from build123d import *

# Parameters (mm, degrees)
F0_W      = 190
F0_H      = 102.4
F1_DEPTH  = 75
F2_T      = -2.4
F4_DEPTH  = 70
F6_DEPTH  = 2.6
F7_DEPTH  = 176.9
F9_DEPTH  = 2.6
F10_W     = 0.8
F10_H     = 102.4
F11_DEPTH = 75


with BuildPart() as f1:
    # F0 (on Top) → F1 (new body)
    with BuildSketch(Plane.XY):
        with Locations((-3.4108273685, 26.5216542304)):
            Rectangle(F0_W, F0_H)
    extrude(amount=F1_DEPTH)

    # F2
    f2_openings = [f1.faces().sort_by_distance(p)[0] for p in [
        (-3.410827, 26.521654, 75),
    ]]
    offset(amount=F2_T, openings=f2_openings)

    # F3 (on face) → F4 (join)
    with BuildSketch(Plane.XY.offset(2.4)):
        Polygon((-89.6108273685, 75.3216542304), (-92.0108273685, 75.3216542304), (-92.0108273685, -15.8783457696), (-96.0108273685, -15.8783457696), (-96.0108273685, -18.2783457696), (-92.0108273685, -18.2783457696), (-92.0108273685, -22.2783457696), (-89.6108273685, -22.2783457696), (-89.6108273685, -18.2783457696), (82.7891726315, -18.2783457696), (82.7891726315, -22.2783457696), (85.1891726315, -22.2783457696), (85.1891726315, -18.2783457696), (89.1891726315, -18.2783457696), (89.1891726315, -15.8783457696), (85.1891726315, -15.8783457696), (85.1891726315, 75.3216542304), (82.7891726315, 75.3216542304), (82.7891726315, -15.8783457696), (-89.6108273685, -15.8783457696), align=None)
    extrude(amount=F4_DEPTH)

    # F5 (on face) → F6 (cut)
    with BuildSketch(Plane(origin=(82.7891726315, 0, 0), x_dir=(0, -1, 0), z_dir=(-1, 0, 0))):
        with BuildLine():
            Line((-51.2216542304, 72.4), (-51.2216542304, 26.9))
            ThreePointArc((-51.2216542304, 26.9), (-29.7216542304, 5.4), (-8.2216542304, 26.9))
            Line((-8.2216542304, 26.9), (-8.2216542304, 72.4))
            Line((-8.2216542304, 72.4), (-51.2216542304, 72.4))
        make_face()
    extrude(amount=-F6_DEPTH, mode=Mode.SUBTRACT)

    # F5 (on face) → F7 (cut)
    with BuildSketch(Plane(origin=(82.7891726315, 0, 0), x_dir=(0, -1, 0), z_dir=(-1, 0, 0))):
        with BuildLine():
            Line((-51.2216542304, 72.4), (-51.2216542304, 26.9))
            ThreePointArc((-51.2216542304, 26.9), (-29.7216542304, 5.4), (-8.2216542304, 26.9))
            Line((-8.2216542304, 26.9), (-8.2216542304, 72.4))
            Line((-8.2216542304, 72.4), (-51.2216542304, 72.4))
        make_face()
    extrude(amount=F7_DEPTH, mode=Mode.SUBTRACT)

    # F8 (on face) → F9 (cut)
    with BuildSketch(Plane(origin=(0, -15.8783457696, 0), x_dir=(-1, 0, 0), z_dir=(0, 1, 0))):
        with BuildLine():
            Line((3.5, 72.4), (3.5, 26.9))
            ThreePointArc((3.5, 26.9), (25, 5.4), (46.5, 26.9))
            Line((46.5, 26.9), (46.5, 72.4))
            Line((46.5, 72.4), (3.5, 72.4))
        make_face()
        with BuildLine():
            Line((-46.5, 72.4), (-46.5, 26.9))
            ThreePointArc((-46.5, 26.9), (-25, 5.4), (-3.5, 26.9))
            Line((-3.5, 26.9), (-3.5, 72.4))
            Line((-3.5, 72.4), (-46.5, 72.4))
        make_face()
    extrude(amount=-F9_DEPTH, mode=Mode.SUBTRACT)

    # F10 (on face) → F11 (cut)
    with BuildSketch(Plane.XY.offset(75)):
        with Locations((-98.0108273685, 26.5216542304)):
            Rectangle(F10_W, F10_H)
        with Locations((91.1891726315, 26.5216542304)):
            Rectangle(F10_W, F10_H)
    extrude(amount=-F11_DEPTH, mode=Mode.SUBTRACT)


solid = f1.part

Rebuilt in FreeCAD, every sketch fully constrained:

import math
import FreeCAD as App
import Part
import Sketcher

V = App.Vector


def faces_at(feature, points):
    """Names of the faces that lie closest to the given points."""
    faces = feature.Shape.Faces
    near = lambda p: min(range(len(faces)), key=lambda i: faces[i].distToShape(Part.Vertex(*p))[0])
    return sorted({f"Face{near(p) + 1}" for p in points})

doc = App.newDocument("Part")
body = doc.addObject("PartDesign::Body", "Body")

# Sketch on XY plane
sketch1 = body.newObject("Sketcher::SketchObject", "Sketch")
sketch1.AttachmentSupport = (doc.getObject("XY_Plane"), [""])
sketch1.MapMode = "FlatFace"
sketch1.addGeometry(Part.LineSegment(V(-98, 78, 0), V(-98, -25, 0)), False)
sketch1.addGeometry(Part.LineSegment(V(-98, -25, 0), V(92, -25, 0)), False)
sketch1.addGeometry(Part.LineSegment(V(92, -25, 0), V(92, 78, 0)), False)
sketch1.addGeometry(Part.LineSegment(V(92, 78, 0), V(-98, 78, 0)), False)
sketch1.addConstraint(Sketcher.Constraint("Coincident", 0, 2, 1, 1))
sketch1.addConstraint(Sketcher.Constraint("Coincident", 1, 2, 2, 1))
sketch1.addConstraint(Sketcher.Constraint("Coincident", 2, 2, 3, 1))
sketch1.addConstraint(Sketcher.Constraint("Coincident", 3, 2, 0, 1))
sketch1.addConstraint(Sketcher.Constraint("Vertical", 0))
sketch1.addConstraint(Sketcher.Constraint("Horizontal", 1))
sketch1.addConstraint(Sketcher.Constraint("Vertical", 2))
sketch1.addConstraint(Sketcher.Constraint("Horizontal", 3))
sketch1.addConstraint(Sketcher.Constraint("DistanceX", 1, 1, 1, 2, 190.0))
sketch1.addConstraint(Sketcher.Constraint("DistanceY", 0, 2, 0, 1, 102.4))
sketch1.addConstraint(Sketcher.Constraint("DistanceX", 0, 2, -1, 1, 98.410827))
sketch1.addConstraint(Sketcher.Constraint("DistanceY", 0, 2, -1, 1, 24.678346))
pad1 = body.newObject("PartDesign::Pad", "Pad")
pad1.Profile = sketch1
pad1.Length = 75
doc.recompute()

thickness = body.newObject("PartDesign::Thickness", "Thickness")
thickness.Base = (pad1, faces_at(pad1, [(-3.411, 26.522, 75)]))
thickness.Value = 2.4
thickness.Reversed = True
thickness.Join = "Arc"

# Sketch on XY plane
sketch2 = body.newObject("Sketcher::SketchObject", "Sketch001")
sketch2.AttachmentSupport = (doc.getObject("XY_Plane"), [""])
sketch2.MapMode = "FlatFace"
sketch2.AttachmentOffset = App.Placement(V(0, 0, 2.4), App.Rotation())
sketch2.addGeometry(Part.LineSegment(V(-89.6, 75.3, 0), V(-92, 75.3, 0)), False)
sketch2.addGeometry(Part.LineSegment(V(-92, 75.3, 0), V(-92, -15.9, 0)), False)
sketch2.addGeometry(Part.LineSegment(V(-92, -15.9, 0), V(-96, -15.9, 0)), False)
sketch2.addGeometry(Part.LineSegment(V(-96, -15.9, 0), V(-96, -18.3, 0)), False)
sketch2.addGeometry(Part.LineSegment(V(-96, -18.3, 0), V(-92, -18.3, 0)), False)
sketch2.addGeometry(Part.LineSegment(V(-92, -18.3, 0), V(-92, -22.3, 0)), False)
sketch2.addGeometry(Part.LineSegment(V(-92, -22.3, 0), V(-89.6, -22.3, 0)), False)
sketch2.addGeometry(Part.LineSegment(V(-89.6, -22.3, 0), V(-89.6, -18.3, 0)), False)
sketch2.addGeometry(Part.LineSegment(V(-89.6, -18.3, 0), V(82.8, -18.3, 0)), False)
sketch2.addGeometry(Part.LineSegment(V(82.8, -18.3, 0), V(82.8, -22.3, 0)), False)
sketch2.addGeometry(Part.LineSegment(V(82.8, -22.3, 0), V(85.2, -22.3, 0)), False)
sketch2.addGeometry(Part.LineSegment(V(85.2, -22.3, 0), V(85.2, -18.3, 0)), False)
sketch2.addGeometry(Part.LineSegment(V(85.2, -18.3, 0), V(89.2, -18.3, 0)), False)
sketch2.addGeometry(Part.LineSegment(V(89.2, -18.3, 0), V(89.2, -15.9, 0)), False)
sketch2.addGeometry(Part.LineSegment(V(89.2, -15.9, 0), V(85.2, -15.9, 0)), False)
sketch2.addGeometry(Part.LineSegment(V(85.2, -15.9, 0), V(85.2, 75.3, 0)), False)
sketch2.addGeometry(Part.LineSegment(V(85.2, 75.3, 0), V(82.8, 75.3, 0)), False)
sketch2.addGeometry(Part.LineSegment(V(82.8, 75.3, 0), V(82.8, -15.9, 0)), False)
sketch2.addGeometry(Part.LineSegment(V(82.8, -15.9, 0), V(-89.6, -15.9, 0)), False)
sketch2.addGeometry(Part.LineSegment(V(-89.6, -15.9, 0), V(-89.6, 75.3, 0)), False)
sketch2.addConstraint(Sketcher.Constraint("Coincident", 0, 2, 1, 1))
sketch2.addConstraint(Sketcher.Constraint("Coincident", 1, 2, 2, 1))
sketch2.addConstraint(Sketcher.Constraint("Coincident", 2, 2, 3, 1))
sketch2.addConstraint(Sketcher.Constraint("Coincident", 3, 2, 4, 1))
sketch2.addConstraint(Sketcher.Constraint("Coincident", 4, 2, 5, 1))
sketch2.addConstraint(Sketcher.Constraint("Coincident", 5, 2, 6, 1))
sketch2.addConstraint(Sketcher.Constraint("Coincident", 6, 2, 7, 1))
sketch2.addConstraint(Sketcher.Constraint("Coincident", 7, 2, 8, 1))
sketch2.addConstraint(Sketcher.Constraint("Coincident", 8, 2, 9, 1))
sketch2.addConstraint(Sketcher.Constraint("Coincident", 9, 2, 10, 1))
sketch2.addConstraint(Sketcher.Constraint("Coincident", 10, 2, 11, 1))
sketch2.addConstraint(Sketcher.Constraint("Coincident", 11, 2, 12, 1))
sketch2.addConstraint(Sketcher.Constraint("Coincident", 12, 2, 13, 1))
sketch2.addConstraint(Sketcher.Constraint("Coincident", 13, 2, 14, 1))
sketch2.addConstraint(Sketcher.Constraint("Coincident", 14, 2, 15, 1))
sketch2.addConstraint(Sketcher.Constraint("Coincident", 15, 2, 16, 1))
sketch2.addConstraint(Sketcher.Constraint("Coincident", 16, 2, 17, 1))
sketch2.addConstraint(Sketcher.Constraint("Coincident", 17, 2, 18, 1))
sketch2.addConstraint(Sketcher.Constraint("Coincident", 18, 2, 19, 1))
sketch2.addConstraint(Sketcher.Constraint("Coincident", 19, 2, 0, 1))
sketch2.addConstraint(Sketcher.Constraint("Horizontal", 0))
sketch2.addConstraint(Sketcher.Constraint("Vertical", 1))
sketch2.addConstraint(Sketcher.Constraint("Horizontal", 2))
sketch2.addConstraint(Sketcher.Constraint("Vertical", 3))
sketch2.addConstraint(Sketcher.Constraint("Horizontal", 4))
sketch2.addConstraint(Sketcher.Constraint("Vertical", 5))
sketch2.addConstraint(Sketcher.Constraint("Horizontal", 6))
sketch2.addConstraint(Sketcher.Constraint("Vertical", 7))
sketch2.addConstraint(Sketcher.Constraint("Horizontal", 8))
sketch2.addConstraint(Sketcher.Constraint("Vertical", 9))
sketch2.addConstraint(Sketcher.Constraint("Horizontal", 10))
sketch2.addConstraint(Sketcher.Constraint("Vertical", 11))
sketch2.addConstraint(Sketcher.Constraint("Horizontal", 12))
sketch2.addConstraint(Sketcher.Constraint("Vertical", 13))
sketch2.addConstraint(Sketcher.Constraint("Horizontal", 14))
sketch2.addConstraint(Sketcher.Constraint("Vertical", 15))
sketch2.addConstraint(Sketcher.Constraint("Horizontal", 16))
sketch2.addConstraint(Sketcher.Constraint("Vertical", 17))
sketch2.addConstraint(Sketcher.Constraint("Horizontal", 18))
sketch2.addConstraint(Sketcher.Constraint("Vertical", 19))
sketch2.addConstraint(Sketcher.Constraint("Horizontal", 4, 2, 7, 2))
sketch2.addConstraint(Sketcher.Constraint("Horizontal", 6, 2, 9, 2))
sketch2.addConstraint(Sketcher.Constraint("Horizontal", 8, 2, 11, 2))
sketch2.addConstraint(Sketcher.Constraint("Horizontal", 2, 2, 13, 2))
sketch2.addConstraint(Sketcher.Constraint("Horizontal", 0, 2, 15, 2))
sketch2.addConstraint(Sketcher.Constraint("Horizontal", 14, 2, 17, 2))
sketch2.addConstraint(Sketcher.Constraint("Vertical", 1, 2, 4, 2))
sketch2.addConstraint(Sketcher.Constraint("Vertical", 11, 2, 14, 2))
sketch2.addConstraint(Sketcher.Constraint("Vertical", 9, 2, 16, 2))
sketch2.addConstraint(Sketcher.Constraint("Vertical", 7, 2, 18, 2))
sketch2.addConstraint(Sketcher.Constraint("Equal", 6, 10))
sketch2.addConstraint(Sketcher.Constraint("Equal", 4, 12))
sketch2.addConstraint(Sketcher.Constraint("Equal", 16, 3))
sketch2.addConstraint(Sketcher.Constraint("Equal", 14, 5))
sketch2.addConstraint(Sketcher.Constraint("DistanceX", 2, 2, 2, 1, 4.0))
sketch2.addConstraint(Sketcher.Constraint("DistanceX", 0, 2, 0, 1, 2.4))
sketch2.addConstraint(Sketcher.Constraint("DistanceX", 8, 1, 8, 2, 172.4))
sketch2.addConstraint(Sketcher.Constraint("DistanceY", 1, 2, 1, 1, 91.2))
sketch2.addConstraint(Sketcher.Constraint("DistanceX", 0, 2, -1, 1, 92.010827))
sketch2.addConstraint(Sketcher.Constraint("DistanceY", -1, 1, 0, 2, 75.321654))
pad2 = body.newObject("PartDesign::Pad", "Pad001")
pad2.Profile = sketch2
pad2.Length = 70

# Sketch on YZ plane
sketch3 = body.newObject("Sketcher::SketchObject", "Sketch002")
sketch3.AttachmentSupport = (doc.getObject("YZ_Plane"), [""])
sketch3.MapMode = "FlatFace"
sketch3.AttachmentOffset = App.Placement(V(0, 0, 82.789173), App.Rotation())
sketch3.addGeometry(Part.LineSegment(V(51, 72, 0), V(51, 27, 0)), False)
sketch3.addGeometry(Part.ArcOfCircle(Part.Circle(V(30, 27, 0), V(0, 0, 1), 22), math.radians(180), math.radians(360)), False)
sketch3.addGeometry(Part.LineSegment(V(8, 27, 0), V(8, 72, 0)), False)
sketch3.addGeometry(Part.LineSegment(V(8, 72, 0), V(51, 72, 0)), False)
sketch3.addConstraint(Sketcher.Constraint("Tangent", 0, 2, 1, 2))
sketch3.addConstraint(Sketcher.Constraint("Tangent", 1, 1, 2, 1))
sketch3.addConstraint(Sketcher.Constraint("Coincident", 2, 2, 3, 1))
sketch3.addConstraint(Sketcher.Constraint("Coincident", 3, 2, 0, 1))
sketch3.addConstraint(Sketcher.Constraint("Vertical", 0))
sketch3.addConstraint(Sketcher.Constraint("Vertical", 2))
sketch3.addConstraint(Sketcher.Constraint("Horizontal", 3))
sketch3.addConstraint(Sketcher.Constraint("Radius", 1, 21.5))
sketch3.addConstraint(Sketcher.Constraint("DistanceY", 0, 2, 0, 1, 45.5))
sketch3.addConstraint(Sketcher.Constraint("DistanceY", -1, 1, 1, 3, 26.9))
sketch3.addConstraint(Sketcher.Constraint("DistanceX", -1, 1, 1, 3, 29.721654))
pocket1 = body.newObject("PartDesign::Pocket", "Pocket")
pocket1.Profile = sketch3
pocket1.Length = 2.6
pocket1.Reversed = True

# Sketch on YZ plane
sketch4 = body.newObject("Sketcher::SketchObject", "Sketch003")
sketch4.AttachmentSupport = (doc.getObject("YZ_Plane"), [""])
sketch4.MapMode = "FlatFace"
sketch4.AttachmentOffset = App.Placement(V(0, 0, 82.789173), App.Rotation())
sketch4.addGeometry(Part.LineSegment(V(51, 72, 0), V(51, 27, 0)), False)
sketch4.addGeometry(Part.ArcOfCircle(Part.Circle(V(30, 27, 0), V(0, 0, 1), 22), math.radians(180), math.radians(360)), False)
sketch4.addGeometry(Part.LineSegment(V(8, 27, 0), V(8, 72, 0)), False)
sketch4.addGeometry(Part.LineSegment(V(8, 72, 0), V(51, 72, 0)), False)
sketch4.addConstraint(Sketcher.Constraint("Tangent", 0, 2, 1, 2))
sketch4.addConstraint(Sketcher.Constraint("Tangent", 1, 1, 2, 1))
sketch4.addConstraint(Sketcher.Constraint("Coincident", 2, 2, 3, 1))
sketch4.addConstraint(Sketcher.Constraint("Coincident", 3, 2, 0, 1))
sketch4.addConstraint(Sketcher.Constraint("Vertical", 0))
sketch4.addConstraint(Sketcher.Constraint("Vertical", 2))
sketch4.addConstraint(Sketcher.Constraint("Horizontal", 3))
sketch4.addConstraint(Sketcher.Constraint("Radius", 1, 21.5))
sketch4.addConstraint(Sketcher.Constraint("DistanceY", 0, 2, 0, 1, 45.5))
sketch4.addConstraint(Sketcher.Constraint("DistanceY", -1, 1, 1, 3, 26.9))
sketch4.addConstraint(Sketcher.Constraint("DistanceX", -1, 1, 1, 3, 29.721654))
pocket2 = body.newObject("PartDesign::Pocket", "Pocket001")
pocket2.Profile = sketch4
pocket2.Length = 176.9

# Sketch on XZ plane
sketch5 = body.newObject("Sketcher::SketchObject", "Sketch004")
sketch5.AttachmentSupport = (doc.getObject("XZ_Plane"), [""])
sketch5.MapMode = "FlatFace"
sketch5.AttachmentOffset = App.Placement(V(0, 0, 15.878346), App.Rotation())
sketch5.addGeometry(Part.LineSegment(V(-4, 72, 0), V(-4, 27, 0)), False)
sketch5.addGeometry(Part.ArcOfCircle(Part.Circle(V(-25, 27, 0), V(0, 0, 1), 22), math.radians(180), math.radians(360)), False)
sketch5.addGeometry(Part.LineSegment(V(-46, 27, 0), V(-46, 72, 0)), False)
sketch5.addGeometry(Part.LineSegment(V(-46, 72, 0), V(-4, 72, 0)), False)
sketch5.addGeometry(Part.LineSegment(V(46, 72, 0), V(46, 27, 0)), False)
sketch5.addGeometry(Part.ArcOfCircle(Part.Circle(V(25, 27, 0), V(0, 0, 1), 22), math.radians(180), math.radians(360)), False)
sketch5.addGeometry(Part.LineSegment(V(4, 27, 0), V(4, 72, 0)), False)
sketch5.addGeometry(Part.LineSegment(V(4, 72, 0), V(46, 72, 0)), False)
sketch5.addConstraint(Sketcher.Constraint("Tangent", 0, 2, 1, 2))
sketch5.addConstraint(Sketcher.Constraint("Tangent", 1, 1, 2, 1))
sketch5.addConstraint(Sketcher.Constraint("Coincident", 2, 2, 3, 1))
sketch5.addConstraint(Sketcher.Constraint("Coincident", 3, 2, 0, 1))
sketch5.addConstraint(Sketcher.Constraint("Tangent", 4, 2, 5, 2))
sketch5.addConstraint(Sketcher.Constraint("Tangent", 5, 1, 6, 1))
sketch5.addConstraint(Sketcher.Constraint("Coincident", 6, 2, 7, 1))
sketch5.addConstraint(Sketcher.Constraint("Coincident", 7, 2, 4, 1))
sketch5.addConstraint(Sketcher.Constraint("Vertical", 0))
sketch5.addConstraint(Sketcher.Constraint("Vertical", 2))
sketch5.addConstraint(Sketcher.Constraint("Horizontal", 3))
sketch5.addConstraint(Sketcher.Constraint("Vertical", 4))
sketch5.addConstraint(Sketcher.Constraint("Vertical", 6))
sketch5.addConstraint(Sketcher.Constraint("Horizontal", 7))
sketch5.addConstraint(Sketcher.Constraint("Equal", 1, 5))
sketch5.addConstraint(Sketcher.Constraint("Symmetric", 1, 3, 5, 3, -2))
sketch5.addConstraint(Sketcher.Constraint("Horizontal", 3, 2, 6, 2))
sketch5.addConstraint(Sketcher.Constraint("Radius", 1, 21.5))
sketch5.addConstraint(Sketcher.Constraint("DistanceY", 0, 2, 0, 1, 45.5))
sketch5.addConstraint(Sketcher.Constraint("DistanceX", 1, 3, -1, 1, 25.0))
sketch5.addConstraint(Sketcher.Constraint("DistanceY", -1, 1, 1, 3, 26.9))
pocket3 = body.newObject("PartDesign::Pocket", "Pocket002")
pocket3.Profile = sketch5
pocket3.Length = 2.6
pocket3.Reversed = True

# Sketch on XY plane
sketch6 = body.newObject("Sketcher::SketchObject", "Sketch005")
sketch6.AttachmentSupport = (doc.getObject("XY_Plane"), [""])
sketch6.MapMode = "FlatFace"
sketch6.AttachmentOffset = App.Placement(V(0, 0, 75), App.Rotation())
sketch6.addGeometry(Part.LineSegment(V(-98.4, 77.7, 0), V(-98.4, -24.7, 0)), False)
sketch6.addGeometry(Part.LineSegment(V(-98.4, -24.7, 0), V(-97.6, -24.7, 0)), False)
sketch6.addGeometry(Part.LineSegment(V(-97.6, -24.7, 0), V(-97.6, 77.7, 0)), False)
sketch6.addGeometry(Part.LineSegment(V(-97.6, 77.7, 0), V(-98.4, 77.7, 0)), False)
sketch6.addGeometry(Part.LineSegment(V(90.8, 77.7, 0), V(90.8, -24.7, 0)), False)
sketch6.addGeometry(Part.LineSegment(V(90.8, -24.7, 0), V(91.6, -24.7, 0)), False)
sketch6.addGeometry(Part.LineSegment(V(91.6, -24.7, 0), V(91.6, 77.7, 0)), False)
sketch6.addGeometry(Part.LineSegment(V(91.6, 77.7, 0), V(90.8, 77.7, 0)), False)
sketch6.addConstraint(Sketcher.Constraint("Coincident", 0, 2, 1, 1))
sketch6.addConstraint(Sketcher.Constraint("Coincident", 1, 2, 2, 1))
sketch6.addConstraint(Sketcher.Constraint("Coincident", 2, 2, 3, 1))
sketch6.addConstraint(Sketcher.Constraint("Coincident", 3, 2, 0, 1))
sketch6.addConstraint(Sketcher.Constraint("Coincident", 4, 2, 5, 1))
sketch6.addConstraint(Sketcher.Constraint("Coincident", 5, 2, 6, 1))
sketch6.addConstraint(Sketcher.Constraint("Coincident", 6, 2, 7, 1))
sketch6.addConstraint(Sketcher.Constraint("Coincident", 7, 2, 4, 1))
sketch6.addConstraint(Sketcher.Constraint("Vertical", 0))
sketch6.addConstraint(Sketcher.Constraint("Horizontal", 1))
sketch6.addConstraint(Sketcher.Constraint("Vertical", 2))
sketch6.addConstraint(Sketcher.Constraint("Horizontal", 3))
sketch6.addConstraint(Sketcher.Constraint("Vertical", 4))
sketch6.addConstraint(Sketcher.Constraint("Horizontal", 5))
sketch6.addConstraint(Sketcher.Constraint("Vertical", 6))
sketch6.addConstraint(Sketcher.Constraint("Horizontal", 7))
sketch6.addConstraint(Sketcher.Constraint("Horizontal", 1, 2, 4, 2))
sketch6.addConstraint(Sketcher.Constraint("Horizontal", 3, 2, 6, 2))
sketch6.addConstraint(Sketcher.Constraint("Equal", 3, 5))
sketch6.addConstraint(Sketcher.Constraint("DistanceX", 1, 1, 1, 2, 0.8))
sketch6.addConstraint(Sketcher.Constraint("DistanceY", 0, 2, 0, 1, 102.4))
sketch6.addConstraint(Sketcher.Constraint("DistanceX", 0, 2, 5, 2, 190.0))
sketch6.addConstraint(Sketcher.Constraint("DistanceX", 0, 2, -1, 1, 98.410827))
sketch6.addConstraint(Sketcher.Constraint("DistanceY", 0, 2, -1, 1, 24.678346))
pocket4 = body.newObject("PartDesign::Pocket", "Pocket003")
pocket4.Profile = sketch6
pocket4.Length = 75

doc.recompute()
